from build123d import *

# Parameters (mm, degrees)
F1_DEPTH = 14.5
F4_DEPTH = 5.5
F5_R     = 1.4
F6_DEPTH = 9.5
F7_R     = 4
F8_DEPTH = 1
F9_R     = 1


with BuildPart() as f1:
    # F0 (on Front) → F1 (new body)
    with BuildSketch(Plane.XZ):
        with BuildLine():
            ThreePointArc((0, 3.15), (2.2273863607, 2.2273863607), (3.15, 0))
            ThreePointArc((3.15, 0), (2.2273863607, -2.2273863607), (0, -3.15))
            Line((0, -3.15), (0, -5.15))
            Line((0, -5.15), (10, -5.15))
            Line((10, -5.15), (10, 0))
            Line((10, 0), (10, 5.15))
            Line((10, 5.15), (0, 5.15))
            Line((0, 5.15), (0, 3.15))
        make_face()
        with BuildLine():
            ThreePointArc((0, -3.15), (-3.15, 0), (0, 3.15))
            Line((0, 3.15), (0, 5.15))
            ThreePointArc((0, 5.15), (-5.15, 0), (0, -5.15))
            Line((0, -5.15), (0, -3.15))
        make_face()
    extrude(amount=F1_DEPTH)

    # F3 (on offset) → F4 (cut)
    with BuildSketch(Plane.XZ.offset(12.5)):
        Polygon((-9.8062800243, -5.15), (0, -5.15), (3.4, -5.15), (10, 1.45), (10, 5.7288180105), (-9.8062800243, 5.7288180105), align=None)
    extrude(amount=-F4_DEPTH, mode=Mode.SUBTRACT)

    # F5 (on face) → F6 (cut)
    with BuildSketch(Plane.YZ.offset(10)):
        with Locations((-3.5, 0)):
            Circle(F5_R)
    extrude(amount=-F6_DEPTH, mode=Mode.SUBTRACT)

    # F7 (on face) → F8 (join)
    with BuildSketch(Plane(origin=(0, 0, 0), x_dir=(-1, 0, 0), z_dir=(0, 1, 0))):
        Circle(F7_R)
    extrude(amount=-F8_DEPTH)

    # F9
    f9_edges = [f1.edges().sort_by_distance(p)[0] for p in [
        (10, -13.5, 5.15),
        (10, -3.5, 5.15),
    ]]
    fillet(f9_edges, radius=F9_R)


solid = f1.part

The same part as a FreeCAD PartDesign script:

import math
import FreeCAD as App
import Part
import Sketcher
Q = App.Units.Quantity


def edges_at(feature, points):
    """Names of the edges that pass closest to the given points."""
    edges = feature.Shape.Edges
    near = lambda p: min(range(len(edges)), key=lambda i: edges[i].distToShape(Part.Vertex(*p))[0])
    return sorted({f"Edge{near(p) + 1}" for p in points})

doc = App.newDocument("Part")
body = doc.addObject("PartDesign::Body", "Body")

sketch1 = body.newObject("Sketcher::SketchObject", "Sketch")
sketch1.AttachmentSupport = (doc.getObject("XZ_Plane"), [""])
sketch1.MapMode = "FlatFace"
sketch1.addGeometry(Part.LineSegment(App.Vector(0, -5.2, 0), App.Vector(10, -5.2, 0)), False)
sketch1.addGeometry(Part.LineSegment(App.Vector(10, -5.2, 0), App.Vector(10, 5.2, 0)), False)
sketch1.addGeometry(Part.LineSegment(App.Vector(10, 5.2, 0), App.Vector(0, 5.2, 0)), False)
sketch1.addGeometry(Part.ArcOfCircle(Part.Circle(App.Vector(0, 0, 0), App.Vector(0, 0, 1), 5.2), math.radians(90), math.radians(270)), False)
sketch1.addGeometry(Part.ArcOfCircle(Part.Circle(App.Vector(0, 0, 0), App.Vector(0, 0, 1), 3.1), math.radians(0), math.radians(90)), False)
sketch1.addGeometry(Part.ArcOfCircle(Part.Circle(App.Vector(0, 0, 0), App.Vector(0, 0, 1), 3.1), math.radians(-90), math.radians(0)), False)
sketch1.addGeometry(Part.ArcOfCircle(Part.Circle(App.Vector(0, 0, 0), App.Vector(0, 0, 1), 3.1), math.radians(90), math.radians(270)), False)
sketch1.addConstraint(Sketcher.Constraint("Coincident", 0, 2, 1, 1))
sketch1.addConstraint(Sketcher.Constraint("Coincident", 1, 2, 2, 1))
sketch1.addConstraint(Sketcher.Constraint("Tangent", 2, 2, 3, 1))
sketch1.addConstraint(Sketcher.Constraint("Tangent", 3, 2, 0, 1))
sketch1.addConstraint(Sketcher.Constraint("Tangent", 4, 1, 5, 2))
sketch1.addConstraint(Sketcher.Constraint("Tangent", 5, 1, 6, 2))
sketch1.addConstraint(Sketcher.Constraint("Tangent", 6, 1, 4, 2))
sketch1.addConstraint(Sketcher.Constraint("Horizontal", 0))
sketch1.addConstraint(Sketcher.Constraint("Vertical", 1))
sketch1.addConstraint(Sketcher.Constraint("Horizontal", 2))
sketch1.addConstraint(Sketcher.Constraint("Coincident", 3, 3, -1, 1))
sketch1.addConstraint(Sketcher.Constraint("Coincident", 4, 3, -1, 1))
sketch1.addConstraint(Sketcher.Constraint("PointOnObject", 4, 1, -1))
sketch1.addConstraint(Sketcher.Constraint("PointOnObject", 5, 1, -2))
sketch1.addConstraint(Sketcher.Constraint("PointOnObject", 6, 1, -2))
sketch1.addConstraint(Sketcher.Constraint("DistanceX", 0, 1, 0, 2, Q("10 mm")))
sketch1.addConstraint(Sketcher.Constraint("Radius", 3, Q("5.15 mm")))
sketch1.addConstraint(Sketcher.Constraint("Radius", 4, Q("3.15 mm")))
pad1 = body.newObject("PartDesign::Pad", "Pad")
pad1.Profile = sketch1
pad1.Length = 14.5

sketch2 = body.newObject("Sketcher::SketchObject", "Sketch001")
sketch2.AttachmentSupport = (doc.getObject("XZ_Plane"), [""])
sketch2.MapMode = "FlatFace"
sketch2.AttachmentOffset = App.Placement(App.Vector(0, 0, 12.5), App.Rotation())
sketch2.addGeometry(Part.LineSegment(App.Vector(-9.8, -5.2, 0), App.Vector(3.4, -5.2, 0)), False)
sketch2.addGeometry(Part.LineSegment(App.Vector(3.4, -5.2, 0), App.Vector(10, 1.4, 0)), False)
sketch2.addGeometry(Part.LineSegment(App.Vector(10, 1.4, 0), App.Vector(10, 5.7, 0)), False)
sketch2.addGeometry(Part.LineSegment(App.Vector(10, 5.7, 0), App.Vector(-9.8, 5.7, 0)), False)
sketch2.addGeometry(Part.LineSegment(App.Vector(-9.8, 5.7, 0), App.Vector(-9.8, -5.2, 0)), False)
sketch2.addConstraint(Sketcher.Constraint("Coincident", 0, 2, 1, 1))
sketch2.addConstraint(Sketcher.Constraint("Coincident", 1, 2, 2, 1))
sketch2.addConstraint(Sketcher.Constraint("Coincident", 2, 2, 3, 1))
sketch2.addConstraint(Sketcher.Constraint("Coincident", 3, 2, 4, 1))
sketch2.addConstraint(Sketcher.Constraint("Coincident", 4, 2, 0, 1))
sketch2.addConstraint(Sketcher.Constraint("Horizontal", 0))
sketch2.addConstraint(Sketcher.Constraint("Vertical", 2))
sketch2.addConstraint(Sketcher.Constraint("Horizontal", 3))
sketch2.addConstraint(Sketcher.Constraint("Vertical", 4))
sketch2.addConstraint(Sketcher.Constraint("Angle", 1, Q("45 deg")))
sketch2.addConstraint(Sketcher.Constraint("DistanceX", -1, 1, 1, 2, Q("10 mm")))
sketch2.addConstraint(Sketcher.Constraint("DistanceX", -1, 1, 0, 2, Q("3.4 mm")))
sketch2.addConstraint(Sketcher.Constraint("DistanceY", 0, 2, -1, 1, Q("5.15 mm")))
sketch2.addConstraint(Sketcher.Constraint("DistanceX", 0, 1, 0, 2, Q("13.20628 mm")))
sketch2.addConstraint(Sketcher.Constraint("DistanceY", 2, 1, 2, 2, Q("4.278818 mm")))
pocket1 = body.newObject("PartDesign::Pocket", "Pocket")
pocket1.Profile = sketch2
pocket1.Length = 5.5

sketch3 = body.newObject("Sketcher::SketchObject", "Sketch002")
sketch3.AttachmentSupport = (doc.getObject("YZ_Plane"), [""])
sketch3.MapMode = "FlatFace"
sketch3.AttachmentOffset = App.Placement(App.Vector(0, 0, 10), App.Rotation())
sketch3.addGeometry(Part.Circle(App.Vector(-3.5, 0, 0), App.Vector(0, 0, 1), 1.4), False)
sketch3.addConstraint(Sketcher.Constraint("PointOnObject", 0, 3, -1))
sketch3.addConstraint(Sketcher.Constraint("Diameter", 0, Q("2.8 mm")))
sketch3.addConstraint(Sketcher.Constraint("DistanceX", 0, 3, -1, 1, Q("3.5 mm")))
pocket2 = body.newObject("PartDesign::Pocket", "Pocket001")
pocket2.Profile = sketch3
pocket2.Length = 9.5

sketch4 = body.newObject("Sketcher::SketchObject", "Sketch003")
sketch4.AttachmentSupport = (doc.getObject("XZ_Plane"), [""])
sketch4.MapMode = "FlatFace"
sketch4.addGeometry(Part.Circle(App.Vector(0, 0, 0), App.Vector(0, 0, 1), 4), False)
sketch4.addConstraint(Sketcher.Constraint("Coincident", 0, 3, -1, 1))
sketch4.addConstraint(Sketcher.Constraint("Diameter", 0, Q("8 mm")))
pad2 = body.newObject("PartDesign::Pad", "Pad001")
pad2.Profile = sketch4
pad2.Length = 1
doc.recompute()

fillet = body.newObject("PartDesign::Fillet", "Fillet")
fillet.Base = (pad2, edges_at(pad2, [(10, -13.5, 5.15), (10, -3.5, 5.15)]))
fillet.Radius = 1

doc.recompute()
